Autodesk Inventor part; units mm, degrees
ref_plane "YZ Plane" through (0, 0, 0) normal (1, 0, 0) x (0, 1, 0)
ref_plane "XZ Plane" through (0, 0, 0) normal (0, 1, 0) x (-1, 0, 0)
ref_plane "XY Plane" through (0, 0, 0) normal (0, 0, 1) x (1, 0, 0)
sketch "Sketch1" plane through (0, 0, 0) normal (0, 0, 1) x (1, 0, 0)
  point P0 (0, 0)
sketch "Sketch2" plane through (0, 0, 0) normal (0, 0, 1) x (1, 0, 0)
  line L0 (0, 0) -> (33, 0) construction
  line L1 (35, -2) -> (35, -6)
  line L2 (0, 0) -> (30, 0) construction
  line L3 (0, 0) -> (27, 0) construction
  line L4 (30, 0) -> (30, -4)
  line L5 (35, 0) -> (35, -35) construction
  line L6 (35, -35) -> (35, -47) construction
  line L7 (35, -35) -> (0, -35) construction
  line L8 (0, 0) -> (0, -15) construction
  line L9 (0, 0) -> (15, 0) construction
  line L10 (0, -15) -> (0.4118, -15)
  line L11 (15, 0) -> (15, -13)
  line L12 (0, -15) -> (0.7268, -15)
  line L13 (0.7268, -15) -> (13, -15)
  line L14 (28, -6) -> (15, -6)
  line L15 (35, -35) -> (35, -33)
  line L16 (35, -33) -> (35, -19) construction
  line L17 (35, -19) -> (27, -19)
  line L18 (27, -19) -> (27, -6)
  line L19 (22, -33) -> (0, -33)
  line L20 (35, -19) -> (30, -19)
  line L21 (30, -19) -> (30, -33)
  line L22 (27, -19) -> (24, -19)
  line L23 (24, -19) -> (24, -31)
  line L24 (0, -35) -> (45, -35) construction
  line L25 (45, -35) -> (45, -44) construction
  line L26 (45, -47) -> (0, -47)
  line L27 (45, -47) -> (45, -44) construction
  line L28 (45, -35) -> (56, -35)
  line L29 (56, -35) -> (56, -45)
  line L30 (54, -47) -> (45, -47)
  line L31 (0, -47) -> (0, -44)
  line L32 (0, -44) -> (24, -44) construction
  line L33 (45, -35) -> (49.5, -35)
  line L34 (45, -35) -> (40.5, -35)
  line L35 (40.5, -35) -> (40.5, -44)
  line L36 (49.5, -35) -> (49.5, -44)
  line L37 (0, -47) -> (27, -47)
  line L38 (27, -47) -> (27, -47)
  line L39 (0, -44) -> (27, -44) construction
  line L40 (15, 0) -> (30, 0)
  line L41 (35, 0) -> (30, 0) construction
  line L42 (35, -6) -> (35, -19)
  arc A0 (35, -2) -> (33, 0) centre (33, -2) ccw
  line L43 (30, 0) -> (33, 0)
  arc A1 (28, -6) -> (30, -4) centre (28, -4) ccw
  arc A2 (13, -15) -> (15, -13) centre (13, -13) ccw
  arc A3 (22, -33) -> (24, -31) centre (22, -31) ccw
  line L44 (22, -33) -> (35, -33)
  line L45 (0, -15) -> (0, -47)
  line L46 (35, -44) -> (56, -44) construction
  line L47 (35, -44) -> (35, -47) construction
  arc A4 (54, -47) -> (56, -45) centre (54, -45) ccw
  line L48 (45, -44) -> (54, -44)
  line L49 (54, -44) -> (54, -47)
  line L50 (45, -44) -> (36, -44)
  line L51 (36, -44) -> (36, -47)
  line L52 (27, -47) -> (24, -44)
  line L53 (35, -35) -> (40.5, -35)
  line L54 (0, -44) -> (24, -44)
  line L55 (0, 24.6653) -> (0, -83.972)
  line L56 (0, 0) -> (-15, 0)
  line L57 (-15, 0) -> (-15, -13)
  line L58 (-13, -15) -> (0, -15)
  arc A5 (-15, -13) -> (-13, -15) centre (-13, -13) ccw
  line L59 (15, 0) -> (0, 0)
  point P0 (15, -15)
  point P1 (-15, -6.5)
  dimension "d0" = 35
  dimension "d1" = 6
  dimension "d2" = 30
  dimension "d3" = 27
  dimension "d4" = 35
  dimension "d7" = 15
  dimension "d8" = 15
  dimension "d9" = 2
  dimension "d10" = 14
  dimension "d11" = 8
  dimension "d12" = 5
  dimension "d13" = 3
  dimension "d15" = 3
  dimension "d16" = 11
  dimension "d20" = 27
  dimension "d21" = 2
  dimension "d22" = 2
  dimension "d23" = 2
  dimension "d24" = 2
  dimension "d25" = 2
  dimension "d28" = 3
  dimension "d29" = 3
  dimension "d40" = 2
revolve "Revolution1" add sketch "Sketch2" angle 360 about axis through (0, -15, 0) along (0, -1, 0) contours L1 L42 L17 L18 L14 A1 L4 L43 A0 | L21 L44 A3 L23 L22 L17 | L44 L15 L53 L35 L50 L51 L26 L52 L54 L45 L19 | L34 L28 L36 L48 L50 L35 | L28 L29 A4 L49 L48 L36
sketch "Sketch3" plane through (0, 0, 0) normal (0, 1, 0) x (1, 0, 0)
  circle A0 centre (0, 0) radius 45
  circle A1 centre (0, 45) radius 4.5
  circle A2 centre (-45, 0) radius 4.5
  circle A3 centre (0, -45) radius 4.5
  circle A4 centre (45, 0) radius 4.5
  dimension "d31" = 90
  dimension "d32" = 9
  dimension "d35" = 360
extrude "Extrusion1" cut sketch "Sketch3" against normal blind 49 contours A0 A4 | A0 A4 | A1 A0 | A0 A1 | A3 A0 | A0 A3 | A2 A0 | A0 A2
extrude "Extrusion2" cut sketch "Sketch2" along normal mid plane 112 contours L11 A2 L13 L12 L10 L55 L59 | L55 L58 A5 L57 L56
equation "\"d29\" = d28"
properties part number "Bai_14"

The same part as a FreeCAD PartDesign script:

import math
import FreeCAD as App
import Part
import Sketcher

V = App.Vector

doc = App.newDocument("Part")
body = doc.addObject("PartDesign::Body", "Body")

sketch1 = doc.addObject("Sketcher::SketchObject", "Sketch")
body.addObject(sketch1)
sketch1.AttachmentSupport = (doc.XY_Plane, [""])
sketch1.MapMode = "FlatFace"
sketch1.addGeometry([
    Part.ArcOfCircle(Part.Circle(V(33, -2, 0), V(0, 0, 1), 2), math.radians(0), math.radians(90)),
    Part.LineSegment(V(33, 0, 0), V(30, 0, 0)),
    Part.LineSegment(V(30, 0, 0), V(30, -4, 0)),
    Part.ArcOfCircle(Part.Circle(V(28, -4, 0), V(0, 0, 1), 2), math.radians(-90), math.radians(0)),
    Part.LineSegment(V(28, -6, 0), V(27, -6, 0)),
    Part.LineSegment(V(27, -6, 0), V(27, -19, 0)),
    Part.LineSegment(V(27, -19, 0), V(24, -19, 0)),
    Part.LineSegment(V(24, -19, 0), V(24, -31, 0)),
    Part.ArcOfCircle(Part.Circle(V(22, -31, 0), V(0, 0, 1), 2), math.radians(-90), math.radians(0)),
    Part.LineSegment(V(22, -33, 0), V(0, -33, 0)),
    Part.LineSegment(V(0, -33, 0), V(0, -44, 0)),
    Part.LineSegment(V(0, -44, 0), V(24, -44, 0)),
    Part.LineSegment(V(24, -44, 0), V(27, -47, 0)),
    Part.LineSegment(V(27, -47, 0), V(36, -47, 0)),
    Part.LineSegment(V(36, -47, 0), V(36, -44, 0)),
    Part.LineSegment(V(36, -44, 0), V(54, -44, 0)),
    Part.LineSegment(V(54, -44, 0), V(54, -47, 0)),
    Part.ArcOfCircle(Part.Circle(V(54, -45, 0), V(0, 0, 1), 2), math.radians(-90), math.radians(0)),
    Part.LineSegment(V(56, -45, 0), V(56, -35, 0)),
    Part.LineSegment(V(56, -35, 0), V(35, -35, 0)),
    Part.LineSegment(V(35, -35, 0), V(35, -33, 0)),
    Part.LineSegment(V(35, -33, 0), V(30, -33, 0)),
    Part.LineSegment(V(30, -33, 0), V(30, -19, 0)),
    Part.LineSegment(V(30, -19, 0), V(35, -19, 0)),
    Part.LineSegment(V(35, -19, 0), V(35, -2, 0)),
], False)
sketch1.addConstraint([
    Sketcher.Constraint("Tangent", 0, 2, 1, 1),
    Sketcher.Constraint("Coincident", 1, 2, 2, 1),
    Sketcher.Constraint("Tangent", 2, 2, 3, 2),
    Sketcher.Constraint("Tangent", 3, 1, 4, 1),
    Sketcher.Constraint("Coincident", 4, 2, 5, 1),
    Sketcher.Constraint("Coincident", 5, 2, 6, 1),
    Sketcher.Constraint("Coincident", 6, 2, 7, 1),
    Sketcher.Constraint("Tangent", 7, 2, 8, 2),
    Sketcher.Constraint("Tangent", 8, 1, 9, 1),
    Sketcher.Constraint("Coincident", 9, 2, 10, 1),
    Sketcher.Constraint("Coincident", 10, 2, 11, 1),
    Sketcher.Constraint("Coincident", 11, 2, 12, 1),
    Sketcher.Constraint("Coincident", 12, 2, 13, 1),
    Sketcher.Constraint("Coincident", 13, 2, 14, 1),
    Sketcher.Constraint("Coincident", 14, 2, 15, 1),
    Sketcher.Constraint("Coincident", 15, 2, 16, 1),
    Sketcher.Constraint("Coincident", 16, 2, 17, 1),
    Sketcher.Constraint("Tangent", 17, 2, 18, 1),
    Sketcher.Constraint("Coincident", 18, 2, 19, 1),
    Sketcher.Constraint("Coincident", 19, 2, 20, 1),
    Sketcher.Constraint("Coincident", 20, 2, 21, 1),
    Sketcher.Constraint("Coincident", 21, 2, 22, 1),
    Sketcher.Constraint("Coincident", 22, 2, 23, 1),
    Sketcher.Constraint("Coincident", 23, 2, 24, 1),
    Sketcher.Constraint("Tangent", 24, 2, 0, 1),
    Sketcher.Constraint("Horizontal", 1),
    Sketcher.Constraint("Vertical", 2),
    Sketcher.Constraint("Horizontal", 4),
    Sketcher.Constraint("Vertical", 5),
    Sketcher.Constraint("Horizontal", 6),
    Sketcher.Constraint("Vertical", 7),
    Sketcher.Constraint("Horizontal", 9),
    Sketcher.Constraint("Vertical", 10),
    Sketcher.Constraint("Horizontal", 11),
    Sketcher.Constraint("Horizontal", 13),
    Sketcher.Constraint("Vertical", 14),
    Sketcher.Constraint("Horizontal", 15),
    Sketcher.Constraint("Vertical", 16),
    Sketcher.Constraint("Vertical", 18),
    Sketcher.Constraint("Horizontal", 19),
    Sketcher.Constraint("Vertical", 20),
    Sketcher.Constraint("Horizontal", 21),
    Sketcher.Constraint("Vertical", 22),
    Sketcher.Constraint("Horizontal", 23),
    Sketcher.Constraint("Vertical", 24),
    Sketcher.Constraint("Equal", 0, 3),
    Sketcher.Constraint("Equal", 3, 8),
    Sketcher.Constraint("Equal", 8, 17),
    Sketcher.Constraint("PointOnObject", 0, 2, -1),
    Sketcher.Constraint("PointOnObject", 9, 2, -2),
    Sketcher.Constraint("Horizontal", 11, 2, 14, 2),
    Sketcher.Constraint("Horizontal", 13, 2, 16, 2),
    Sketcher.Constraint("Horizontal", 9, 2, 20, 2),
    Sketcher.Constraint("Horizontal", 6, 2, 22, 2),
    Sketcher.Constraint("Vertical", 7, 2, 11, 2),
    Sketcher.Constraint("Vertical", 5, 2, 12, 2),
    Sketcher.Constraint("Vertical", 17, 3, 15, 2),
    Sketcher.Constraint("Vertical", 2, 2, 21, 2),
    Sketcher.Constraint("Vertical", 20, 2, 23, 2),
    Sketcher.Constraint("Equal", 1, 6),
    Sketcher.Constraint("Equal", 6, 14),
    Sketcher.Constraint("Radius", 0, 2.0),
    Sketcher.Constraint("DistanceX", 1, 2, 1, 1, 3.0),
    Sketcher.Constraint("DistanceY", 10, 2, 10, 1, 11.0),
    Sketcher.Constraint("DistanceY", 20, 1, 20, 2, 2.0),
    Sketcher.Constraint("DistanceY", 22, 1, 22, 2, 14.0),
    Sketcher.Constraint("DistanceX", -1, 1, 1, 2, 30.0),
    Sketcher.Constraint("DistanceY", 3, 1, -1, 1, 6.0),
    Sketcher.Constraint("DistanceX", -1, 1, 4, 2, 27.0),
    Sketcher.Constraint("DistanceY", 18, 2, -1, 1, 35.0),
    Sketcher.Constraint("DistanceX", 12, 2, 17, 3, 27.0),
    Sketcher.Constraint("DistanceX", 8, 1, 13, 2, 14.0),
])
revolution = doc.addObject("PartDesign::Revolution", "Revolution")
body.addObject(revolution)
revolution.Profile = sketch1
revolution.ReferenceAxis = (sketch1, ["V_Axis"])
revolution.Angle = 360

sketch2 = doc.addObject("Sketcher::SketchObject", "Sketch001")
body.addObject(sketch2)
sketch2.AttachmentSupport = (doc.XZ_Plane, [""])
sketch2.MapMode = "FlatFace"
sketch2.addGeometry([
    Part.Circle(V(45, 0, 0), V(0, 0, 1), 4.5),
    Part.Circle(V(0, -45, 0), V(0, 0, 1), 4.5),
    Part.Circle(V(0, 45, 0), V(0, 0, 1), 4.5),
    Part.Circle(V(-45, 0, 0), V(0, 0, 1), 4.5),
], False)
sketch2.addConstraint([
    Sketcher.Constraint("Equal", 0, 1),
    Sketcher.Constraint("Equal", 1, 2),
    Sketcher.Constraint("Equal", 2, 3),
    Sketcher.Constraint("Symmetric", 1, 3, 2, 3, -1, 1),
    Sketcher.Constraint("Symmetric", 0, 3, 3, 3, -1, 1),
    Sketcher.Constraint("PointOnObject", 0, 3, -1),
    Sketcher.Constraint("PointOnObject", 1, 3, -2),
    Sketcher.Constraint("Diameter", 0, 9.0),
    Sketcher.Constraint("DistanceY", 1, 3, 2, 3, 90.0),
    Sketcher.Constraint("DistanceX", 3, 3, 0, 3, 90.0),
])
pocket1 = doc.addObject("PartDesign::Pocket", "Pocket")
body.addObject(pocket1)
pocket1.Profile = sketch2
pocket1.Length = 49
pocket1.Reversed = True

sketch3 = doc.addObject("Sketcher::SketchObject", "Sketch002")
body.addObject(sketch3)
sketch3.AttachmentSupport = (doc.XY_Plane, [""])
sketch3.MapMode = "FlatFace"
sketch3.addGeometry([
    Part.LineSegment(V(15, 0, 0), V(-15, 0, 0)),
    Part.LineSegment(V(-15, 0, 0), V(-15, -13, 0)),
    Part.ArcOfCircle(Part.Circle(V(-13, -13, 0), V(0, 0, 1), 2), math.radians(180), math.radians(270)),
    Part.LineSegment(V(-13, -15, 0), V(13, -15, 0)),
    Part.ArcOfCircle(Part.Circle(V(13, -13, 0), V(0, 0, 1), 2), math.radians(-90), math.radians(0)),
    Part.LineSegment(V(15, -13, 0), V(15, 0, 0)),
], False)
sketch3.addConstraint([
    Sketcher.Constraint("Coincident", 0, 2, 1, 1),
    Sketcher.Constraint("Tangent", 1, 2, 2, 1),
    Sketcher.Constraint("Tangent", 2, 2, 3, 1),
    Sketcher.Constraint("Tangent", 3, 2, 4, 1),
    Sketcher.Constraint("Tangent", 4, 2, 5, 1),
    Sketcher.Constraint("Coincident", 5, 2, 0, 1),
    Sketcher.Constraint("Horizontal", 0),
    Sketcher.Constraint("Vertical", 1),
    Sketcher.Constraint("Horizontal", 3),
    Sketcher.Constraint("Vertical", 5),
    Sketcher.Constraint("Equal", 2, 4),
    Sketcher.Constraint("Symmetric", 0, 2, 5, 2, -1, 1),
    Sketcher.Constraint("Radius", 2, 2.0),
    Sketcher.Constraint("DistanceX", 0, 2, 0, 1, 30.0),
    Sketcher.Constraint("DistanceY", 2, 2, -1, 1, 15.0),
])
pocket2 = doc.addObject("PartDesign::Pocket", "Pocket001")
body.addObject(pocket2)
pocket2.Profile = sketch3
pocket2.Length = 112
pocket2.Midplane = True

doc.recompute()
